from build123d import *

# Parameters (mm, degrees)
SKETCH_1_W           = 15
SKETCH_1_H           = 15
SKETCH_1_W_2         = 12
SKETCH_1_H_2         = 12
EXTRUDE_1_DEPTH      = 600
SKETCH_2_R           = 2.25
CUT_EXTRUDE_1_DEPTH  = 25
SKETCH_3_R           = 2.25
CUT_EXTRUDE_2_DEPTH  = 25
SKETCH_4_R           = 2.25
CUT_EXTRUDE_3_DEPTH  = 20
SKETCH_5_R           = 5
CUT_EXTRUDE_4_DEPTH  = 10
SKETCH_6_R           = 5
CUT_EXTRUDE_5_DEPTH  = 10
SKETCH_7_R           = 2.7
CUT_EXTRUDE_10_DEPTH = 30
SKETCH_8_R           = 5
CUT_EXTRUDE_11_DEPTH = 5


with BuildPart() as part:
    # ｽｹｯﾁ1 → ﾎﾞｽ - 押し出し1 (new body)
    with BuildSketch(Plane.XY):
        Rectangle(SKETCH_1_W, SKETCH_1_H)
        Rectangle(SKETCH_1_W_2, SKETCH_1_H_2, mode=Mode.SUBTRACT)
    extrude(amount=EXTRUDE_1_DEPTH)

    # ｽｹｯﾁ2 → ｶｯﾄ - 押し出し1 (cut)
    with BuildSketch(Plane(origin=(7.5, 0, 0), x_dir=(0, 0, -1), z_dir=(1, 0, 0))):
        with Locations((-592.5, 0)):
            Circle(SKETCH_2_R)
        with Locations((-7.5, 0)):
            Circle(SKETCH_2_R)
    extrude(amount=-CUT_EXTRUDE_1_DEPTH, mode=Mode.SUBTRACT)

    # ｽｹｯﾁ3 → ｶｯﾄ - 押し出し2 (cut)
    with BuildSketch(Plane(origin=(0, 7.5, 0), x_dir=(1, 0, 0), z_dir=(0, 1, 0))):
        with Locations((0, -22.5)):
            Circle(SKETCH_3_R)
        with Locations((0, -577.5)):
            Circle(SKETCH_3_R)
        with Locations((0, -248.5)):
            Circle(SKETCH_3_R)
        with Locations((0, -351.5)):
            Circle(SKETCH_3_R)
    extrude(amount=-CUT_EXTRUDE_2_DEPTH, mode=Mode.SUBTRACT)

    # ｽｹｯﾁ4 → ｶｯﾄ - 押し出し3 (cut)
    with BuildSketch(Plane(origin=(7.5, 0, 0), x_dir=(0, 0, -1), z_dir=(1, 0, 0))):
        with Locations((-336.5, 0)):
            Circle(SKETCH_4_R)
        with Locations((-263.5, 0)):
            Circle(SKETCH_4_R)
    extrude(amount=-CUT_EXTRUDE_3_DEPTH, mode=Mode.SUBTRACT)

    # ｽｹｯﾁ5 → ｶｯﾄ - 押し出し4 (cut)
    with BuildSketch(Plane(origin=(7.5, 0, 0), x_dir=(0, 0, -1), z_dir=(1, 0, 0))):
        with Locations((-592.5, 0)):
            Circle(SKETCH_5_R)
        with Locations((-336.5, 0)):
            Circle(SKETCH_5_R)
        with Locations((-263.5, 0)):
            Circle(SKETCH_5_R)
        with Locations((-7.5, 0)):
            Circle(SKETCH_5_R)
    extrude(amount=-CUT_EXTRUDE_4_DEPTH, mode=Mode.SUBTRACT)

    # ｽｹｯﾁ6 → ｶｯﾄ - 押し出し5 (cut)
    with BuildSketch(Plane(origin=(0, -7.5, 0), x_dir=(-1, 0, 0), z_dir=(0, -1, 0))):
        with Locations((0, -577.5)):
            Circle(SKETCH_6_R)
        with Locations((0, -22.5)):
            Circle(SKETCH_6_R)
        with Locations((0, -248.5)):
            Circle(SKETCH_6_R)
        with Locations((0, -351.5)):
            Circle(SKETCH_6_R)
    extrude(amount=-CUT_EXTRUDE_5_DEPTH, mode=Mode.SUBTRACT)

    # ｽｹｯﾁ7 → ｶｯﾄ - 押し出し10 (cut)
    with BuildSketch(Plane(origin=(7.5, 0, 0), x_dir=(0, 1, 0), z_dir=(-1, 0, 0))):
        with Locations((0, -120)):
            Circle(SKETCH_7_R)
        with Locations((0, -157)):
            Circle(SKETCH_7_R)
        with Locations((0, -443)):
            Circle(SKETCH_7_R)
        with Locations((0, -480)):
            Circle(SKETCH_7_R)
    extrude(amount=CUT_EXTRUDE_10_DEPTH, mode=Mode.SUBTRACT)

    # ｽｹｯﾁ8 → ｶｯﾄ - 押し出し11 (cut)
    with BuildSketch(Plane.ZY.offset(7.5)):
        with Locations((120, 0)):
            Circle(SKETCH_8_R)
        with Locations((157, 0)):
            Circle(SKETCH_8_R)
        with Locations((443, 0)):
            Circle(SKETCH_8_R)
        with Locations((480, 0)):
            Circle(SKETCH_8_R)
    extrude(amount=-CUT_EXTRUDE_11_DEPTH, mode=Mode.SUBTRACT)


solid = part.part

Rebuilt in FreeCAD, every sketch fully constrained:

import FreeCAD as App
import Part
import Sketcher


def add_polygon(sketch, points):
    """Adds a closed chain of lines whose ends are joined by coincident constraints."""
    first, n = sketch.GeometryCount, len(points)
    for a, b in zip(points, points[1:] + points[:1]):
        sketch.addGeometry(Part.LineSegment(App.Vector(*a, 0), App.Vector(*b, 0)), False)
    for i in range(n):
        sketch.addConstraint(Sketcher.Constraint("Coincident", first + i, 2, first + (i + 1) % n, 1))

doc = App.newDocument("Part")
params = doc.addObject("Spreadsheet::Sheet", "Params")
for row, (alias, value) in enumerate([
    ("sketch1_width", "15 mm"),
    ("sketch1_width2", "12 mm"),
    ("pad1_length", "600 mm"),
    ("sketch2_diameter", "4.5 mm"),
    ("pocket1_length", "25 mm"),
    ("sketch3_diameter", "4.5 mm"),
    ("pocket2_length", "25 mm"),
    ("sketch4_diameter", "4.5 mm"),
    ("pocket3_length", "20 mm"),
    ("sketch5_diameter", "10 mm"),
    ("pocket4_length", "10 mm"),
    ("sketch6_diameter", "10 mm"),
    ("pocket5_length", "10 mm"),
    ("sketch7_diameter", "5.4 mm"),
    ("pocket6_length", "30 mm"),
    ("sketch8_diameter", "10 mm"),
    ("pocket7_length", "5 mm"),
], start=1):
    params.set(f"A{row}", alias)
    params.set(f"B{row}", "=" + value)
    params.setAlias(f"B{row}", alias)

body = doc.addObject("PartDesign::Body", "Body")

# Sketch on XY plane
sketch1 = doc.addObject("Sketcher::SketchObject", "Sketch")
body.addObject(sketch1)
sketch1.AttachmentSupport = (doc.XY_Plane, [""])
sketch1.MapMode = "FlatFace"
add_polygon(sketch1, [(-7.5, 7.5), (-7.5, -7.5), (7.5, -7.5), (7.5, 7.5)])  # lines 0-3
add_polygon(sketch1, [(6, -6), (-6, -6), (-6, 6), (6, 6)])  # lines 4-7
sketch1.addConstraint([
    Sketcher.Constraint("Vertical", 0),
    Sketcher.Constraint("Horizontal", 1),
    Sketcher.Constraint("Vertical", 2),
    Sketcher.Constraint("Horizontal", 3),
    Sketcher.Constraint("Horizontal", 4),
    Sketcher.Constraint("Vertical", 5),
    Sketcher.Constraint("Horizontal", 6),
    Sketcher.Constraint("Vertical", 7),
    Sketcher.Constraint("Symmetric", 0, 2, 2, 2, -1, 1),
    Sketcher.Constraint("Symmetric", 4, 2, 6, 2, -1, 1),
    Sketcher.Constraint("Equal", 3, 0),
    Sketcher.Constraint("Equal", 6, 5),
    Sketcher.Constraint("DistanceX", 1, 1, 1, 2, 15.0),
    Sketcher.Constraint("DistanceX", 4, 2, 4, 1, 12.0),
])
sketch1.setExpression("Constraints[20]", "Params.sketch1_width")
sketch1.setExpression("Constraints[21]", "Params.sketch1_width2")
pad1 = doc.addObject("PartDesign::Pad", "Pad")
body.addObject(pad1)
pad1.Profile = sketch1
pad1.setExpression("Length", "Params.pad1_length")

# Sketch on YZ plane
sketch2 = doc.addObject("Sketcher::SketchObject", "Sketch001")
body.addObject(sketch2)
sketch2.AttachmentSupport = (doc.YZ_Plane, [""])
sketch2.MapMode = "FlatFace"
sketch2.AttachmentOffset = App.Placement(App.Vector(0, 0, 7.5), App.Rotation())
sketch2.addGeometry([
    Part.Circle(App.Vector(0, 592.5, 0), App.Vector(0, 0, 1), 2.25),
    Part.Circle(App.Vector(0, 7.5, 0), App.Vector(0, 0, 1), 2.25),
], False)
sketch2.addConstraint([
    Sketcher.Constraint("Equal", 0, 1),
    Sketcher.Constraint("PointOnObject", 0, 3, -2),
    Sketcher.Constraint("PointOnObject", 1, 3, -2),
    Sketcher.Constraint("Diameter", 0, 4.5),
    Sketcher.Constraint("DistanceY", 1, 3, 0, 3, 585.0),
    Sketcher.Constraint("DistanceY", -1, 1, 0, 3, 592.5),
])
sketch2.setExpression("Constraints[3]", "Params.sketch2_diameter")
pocket1 = doc.addObject("PartDesign::Pocket", "Pocket")
body.addObject(pocket1)
pocket1.Profile = sketch2
pocket1.setExpression("Length", "Params.pocket1_length")

# Sketch on XZ plane
sketch3 = doc.addObject("Sketcher::SketchObject", "Sketch002")
body.addObject(sketch3)
sketch3.AttachmentSupport = (doc.XZ_Plane, [""])
sketch3.MapMode = "FlatFace"
sketch3.AttachmentOffset = App.Placement(App.Vector(0, 0, -7.5), App.Rotation())
sketch3.addGeometry([
    Part.Circle(App.Vector(0, 22.5, 0), App.Vector(0, 0, 1), 2.25),
    Part.Circle(App.Vector(0, 577.5, 0), App.Vector(0, 0, 1), 2.25),
    Part.Circle(App.Vector(0, 248.5, 0), App.Vector(0, 0, 1), 2.25),
    Part.Circle(App.Vector(0, 351.5, 0), App.Vector(0, 0, 1), 2.25),
], False)
sketch3.addConstraint([
    Sketcher.Constraint("Equal", 0, 1),
    Sketcher.Constraint("Equal", 1, 2),
    Sketcher.Constraint("Equal", 2, 3),
    Sketcher.Constraint("PointOnObject", 0, 3, -2),
    Sketcher.Constraint("PointOnObject", 1, 3, -2),
    Sketcher.Constraint("PointOnObject", 2, 3, -2),
    Sketcher.Constraint("PointOnObject", 3, 3, -2),
    Sketcher.Constraint("Diameter", 0, 4.5),
    Sketcher.Constraint("DistanceY", 0, 3, 1, 3, 555.0),
    Sketcher.Constraint("DistanceY", 0, 3, 2, 3, 226.0),
    Sketcher.Constraint("DistanceY", 2, 3, 3, 3, 103.0),
    Sketcher.Constraint("DistanceY", -1, 1, 0, 3, 22.5),
])
sketch3.setExpression("Constraints[7]", "Params.sketch3_diameter")
pocket2 = doc.addObject("PartDesign::Pocket", "Pocket001")
body.addObject(pocket2)
pocket2.Profile = sketch3
pocket2.setExpression("Length", "Params.pocket2_length")
pocket2.Reversed = True

# Sketch on YZ plane
sketch4 = doc.addObject("Sketcher::SketchObject", "Sketch003")
body.addObject(sketch4)
sketch4.AttachmentSupport = (doc.YZ_Plane, [""])
sketch4.MapMode = "FlatFace"
sketch4.AttachmentOffset = App.Placement(App.Vector(0, 0, 7.5), App.Rotation())
sketch4.addGeometry([
    Part.Circle(App.Vector(0, 336.5, 0), App.Vector(0, 0, 1), 2.25),
    Part.Circle(App.Vector(0, 263.5, 0), App.Vector(0, 0, 1), 2.25),
], False)
sketch4.addConstraint([
    Sketcher.Constraint("Equal", 0, 1),
    Sketcher.Constraint("PointOnObject", 0, 3, -2),
    Sketcher.Constraint("PointOnObject", 1, 3, -2),
    Sketcher.Constraint("Diameter", 0, 4.5),
    Sketcher.Constraint("DistanceY", 1, 3, 0, 3, 73.0),
    Sketcher.Constraint("DistanceY", -1, 1, 0, 3, 336.5),
])
sketch4.setExpression("Constraints[3]", "Params.sketch4_diameter")
pocket3 = doc.addObject("PartDesign::Pocket", "Pocket002")
body.addObject(pocket3)
pocket3.Profile = sketch4
pocket3.setExpression("Length", "Params.pocket3_length")

# Sketch on YZ plane
sketch5 = doc.addObject("Sketcher::SketchObject", "Sketch004")
body.addObject(sketch5)
sketch5.AttachmentSupport = (doc.YZ_Plane, [""])
sketch5.MapMode = "FlatFace"
sketch5.AttachmentOffset = App.Placement(App.Vector(0, 0, 7.5), App.Rotation())
sketch5.addGeometry([
    Part.Circle(App.Vector(0, 592.5, 0), App.Vector(0, 0, 1), 5),
    Part.Circle(App.Vector(0, 336.5, 0), App.Vector(0, 0, 1), 5),
    Part.Circle(App.Vector(0, 263.5, 0), App.Vector(0, 0, 1), 5),
    Part.Circle(App.Vector(0, 7.5, 0), App.Vector(0, 0, 1), 5),
], False)
sketch5.addConstraint([
    Sketcher.Constraint("Equal", 0, 1),
    Sketcher.Constraint("Equal", 1, 2),
    Sketcher.Constraint("Equal", 2, 3),
    Sketcher.Constraint("PointOnObject", 0, 3, -2),
    Sketcher.Constraint("PointOnObject", 1, 3, -2),
    Sketcher.Constraint("PointOnObject", 2, 3, -2),
    Sketcher.Constraint("PointOnObject", 3, 3, -2),
    Sketcher.Constraint("Diameter", 0, 10.0),
    Sketcher.Constraint("DistanceY", 1, 3, 0, 3, 256.0),
    Sketcher.Constraint("DistanceY", 2, 3, 1, 3, 73.0),
    Sketcher.Constraint("DistanceY", 3, 3, 2, 3, 256.0),
    Sketcher.Constraint("DistanceY", -1, 1, 0, 3, 592.5),
])
sketch5.setExpression("Constraints[7]", "Params.sketch5_diameter")
pocket4 = doc.addObject("PartDesign::Pocket", "Pocket003")
body.addObject(pocket4)
pocket4.Profile = sketch5
pocket4.setExpression("Length", "Params.pocket4_length")

# Sketch on XZ plane
sketch6 = doc.addObject("Sketcher::SketchObject", "Sketch005")
body.addObject(sketch6)
sketch6.AttachmentSupport = (doc.XZ_Plane, [""])
sketch6.MapMode = "FlatFace"
sketch6.AttachmentOffset = App.Placement(App.Vector(0, 0, 7.5), App.Rotation())
sketch6.addGeometry([
    Part.Circle(App.Vector(0, 577.5, 0), App.Vector(0, 0, 1), 5),
    Part.Circle(App.Vector(0, 22.5, 0), App.Vector(0, 0, 1), 5),
    Part.Circle(App.Vector(0, 248.5, 0), App.Vector(0, 0, 1), 5),
    Part.Circle(App.Vector(0, 351.5, 0), App.Vector(0, 0, 1), 5),
], False)
sketch6.addConstraint([
    Sketcher.Constraint("Equal", 0, 1),
    Sketcher.Constraint("Equal", 1, 2),
    Sketcher.Constraint("Equal", 2, 3),
    Sketcher.Constraint("PointOnObject", 0, 3, -2),
    Sketcher.Constraint("PointOnObject", 1, 3, -2),
    Sketcher.Constraint("PointOnObject", 2, 3, -2),
    Sketcher.Constraint("PointOnObject", 3, 3, -2),
    Sketcher.Constraint("Diameter", 0, 10.0),
    Sketcher.Constraint("DistanceY", 1, 3, 0, 3, 555.0),
    Sketcher.Constraint("DistanceY", 1, 3, 2, 3, 226.0),
    Sketcher.Constraint("DistanceY", 2, 3, 3, 3, 103.0),
    Sketcher.Constraint("DistanceY", -1, 1, 0, 3, 577.5),
])
sketch6.setExpression("Constraints[7]", "Params.sketch6_diameter")
pocket5 = doc.addObject("PartDesign::Pocket", "Pocket004")
body.addObject(pocket5)
pocket5.Profile = sketch6
pocket5.setExpression("Length", "Params.pocket5_length")

# Sketch on YZ plane
sketch7 = doc.addObject("Sketcher::SketchObject", "Sketch006")
body.addObject(sketch7)
sketch7.AttachmentSupport = (doc.YZ_Plane, [""])
sketch7.MapMode = "FlatFace"
sketch7.AttachmentOffset = App.Placement(App.Vector(0, 0, 7.5), App.Rotation())
sketch7.addGeometry([
    Part.Circle(App.Vector(0, 120, 0), App.Vector(0, 0, 1), 2.7),
    Part.Circle(App.Vector(0, 157, 0), App.Vector(0, 0, 1), 2.7),
    Part.Circle(App.Vector(0, 443, 0), App.Vector(0, 0, 1), 2.7),
    Part.Circle(App.Vector(0, 480, 0), App.Vector(0, 0, 1), 2.7),
], False)
sketch7.addConstraint([
    Sketcher.Constraint("Equal", 0, 1),
    Sketcher.Constraint("Equal", 1, 2),
    Sketcher.Constraint("Equal", 2, 3),
    Sketcher.Constraint("PointOnObject", 0, 3, -2),
    Sketcher.Constraint("PointOnObject", 1, 3, -2),
    Sketcher.Constraint("PointOnObject", 2, 3, -2),
    Sketcher.Constraint("PointOnObject", 3, 3, -2),
    Sketcher.Constraint("Diameter", 0, 5.4),
    Sketcher.Constraint("DistanceY", -1, 1, 0, 3, 120.0),
    Sketcher.Constraint("DistanceY", -1, 1, 1, 3, 157.0),
    Sketcher.Constraint("DistanceY", -1, 1, 2, 3, 443.0),
    Sketcher.Constraint("DistanceY", -1, 1, 3, 3, 480.0),
])
sketch7.setExpression("Constraints[7]", "Params.sketch7_diameter")
pocket6 = doc.addObject("PartDesign::Pocket", "Pocket005")
body.addObject(pocket6)
pocket6.Profile = sketch7
pocket6.setExpression("Length", "Params.pocket6_length")

# Sketch on YZ plane
sketch8 = doc.addObject("Sketcher::SketchObject", "Sketch007")
body.addObject(sketch8)
sketch8.AttachmentSupport = (doc.YZ_Plane, [""])
sketch8.MapMode = "FlatFace"
sketch8.AttachmentOffset = App.Placement(App.Vector(0, 0, -7.5), App.Rotation())
sketch8.addGeometry([
    Part.Circle(App.Vector(0, 120, 0), App.Vector(0, 0, 1), 5),
    Part.Circle(App.Vector(0, 157, 0), App.Vector(0, 0, 1), 5),
    Part.Circle(App.Vector(0, 443, 0), App.Vector(0, 0, 1), 5),
    Part.Circle(App.Vector(0, 480, 0), App.Vector(0, 0, 1), 5),
], False)
sketch8.addConstraint([
    Sketcher.Constraint("Equal", 0, 1),
    Sketcher.Constraint("Equal", 1, 2),
    Sketcher.Constraint("Equal", 2, 3),
    Sketcher.Constraint("PointOnObject", 0, 3, -2),
    Sketcher.Constraint("PointOnObject", 1, 3, -2),
    Sketcher.Constraint("PointOnObject", 2, 3, -2),
    Sketcher.Constraint("PointOnObject", 3, 3, -2),
    Sketcher.Constraint("Diameter", 0, 10.0),
    Sketcher.Constraint("DistanceY", -1, 1, 0, 3, 120.0),
    Sketcher.Constraint("DistanceY", -1, 1, 1, 3, 157.0),
    Sketcher.Constraint("DistanceY", -1, 1, 2, 3, 443.0),
    Sketcher.Constraint("DistanceY", -1, 1, 3, 3, 480.0),
])
sketch8.setExpression("Constraints[7]", "Params.sketch8_diameter")
pocket7 = doc.addObject("PartDesign::Pocket", "Pocket006")
body.addObject(pocket7)
pocket7.Profile = sketch8
pocket7.setExpression("Length", "Params.pocket7_length")
pocket7.Reversed = True

doc.recompute()
